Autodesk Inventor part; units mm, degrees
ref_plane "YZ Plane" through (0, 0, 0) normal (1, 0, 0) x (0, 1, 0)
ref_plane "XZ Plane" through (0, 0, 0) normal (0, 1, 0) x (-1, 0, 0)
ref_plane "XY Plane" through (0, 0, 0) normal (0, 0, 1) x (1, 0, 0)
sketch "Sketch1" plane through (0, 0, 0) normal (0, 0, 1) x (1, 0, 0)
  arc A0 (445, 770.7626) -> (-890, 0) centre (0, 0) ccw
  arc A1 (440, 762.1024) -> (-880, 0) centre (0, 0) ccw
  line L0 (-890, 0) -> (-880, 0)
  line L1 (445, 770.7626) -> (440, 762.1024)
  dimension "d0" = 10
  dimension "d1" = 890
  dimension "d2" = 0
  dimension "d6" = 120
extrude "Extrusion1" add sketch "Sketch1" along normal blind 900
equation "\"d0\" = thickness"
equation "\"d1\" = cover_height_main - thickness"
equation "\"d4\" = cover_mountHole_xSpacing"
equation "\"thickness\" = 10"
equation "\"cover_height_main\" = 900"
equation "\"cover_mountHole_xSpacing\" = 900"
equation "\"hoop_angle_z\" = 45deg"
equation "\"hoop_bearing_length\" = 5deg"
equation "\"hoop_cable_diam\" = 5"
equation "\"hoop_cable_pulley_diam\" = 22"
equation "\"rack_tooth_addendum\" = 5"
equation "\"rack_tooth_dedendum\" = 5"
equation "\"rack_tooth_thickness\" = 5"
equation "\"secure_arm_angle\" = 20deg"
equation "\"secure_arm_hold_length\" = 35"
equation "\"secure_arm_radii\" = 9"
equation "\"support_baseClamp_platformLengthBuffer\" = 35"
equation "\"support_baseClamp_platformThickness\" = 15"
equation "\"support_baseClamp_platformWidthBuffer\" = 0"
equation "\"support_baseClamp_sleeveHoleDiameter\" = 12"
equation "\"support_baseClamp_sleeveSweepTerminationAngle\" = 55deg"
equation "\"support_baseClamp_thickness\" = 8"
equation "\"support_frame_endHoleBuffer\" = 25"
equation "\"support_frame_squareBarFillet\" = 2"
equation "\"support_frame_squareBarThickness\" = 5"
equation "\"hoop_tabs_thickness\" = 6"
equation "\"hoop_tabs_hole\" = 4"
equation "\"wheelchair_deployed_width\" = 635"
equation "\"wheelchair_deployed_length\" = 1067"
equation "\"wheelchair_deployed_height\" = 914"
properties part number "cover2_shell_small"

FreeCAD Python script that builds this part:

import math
import FreeCAD as App
import Part
import Sketcher
Q = App.Units.Quantity

doc = App.newDocument("Part")
body = doc.addObject("PartDesign::Body", "Body")

sketch1 = doc.addObject("Sketcher::SketchObject", "Sketch")
body.addObject(sketch1)
sketch1.AttachmentSupport = (doc.XY_Plane, [""])
sketch1.MapMode = "FlatFace"
sketch1.addGeometry([
    Part.LineSegment(App.Vector(440, 762, 0), App.Vector(445, 771, 0)),
    Part.ArcOfCircle(Part.Circle(App.Vector(0, 0, 0), App.Vector(0, 0, 1), 890), math.radians(60), math.radians(180)),
    Part.LineSegment(App.Vector(-890, 0, 0), App.Vector(-880, 0, 0)),
    Part.ArcOfCircle(Part.Circle(App.Vector(0, 0, 0), App.Vector(0, 0, 1), 880), math.radians(60), math.radians(180)),
], False)
sketch1.addConstraint([
    Sketcher.Constraint("Coincident", 0, 2, 1, 1),
    Sketcher.Constraint("Coincident", 1, 2, 2, 1),
    Sketcher.Constraint("Coincident", 2, 2, 3, 2),
    Sketcher.Constraint("Coincident", 3, 1, 0, 1),
    Sketcher.Constraint("Horizontal", 2),
    Sketcher.Constraint("Coincident", 1, 3, -1, 1),
    Sketcher.Constraint("Coincident", 3, 3, -1, 1),
    Sketcher.Constraint("PointOnObject", 2, 2, -1),
    Sketcher.Constraint("Radius", 1, 890.0),
    Sketcher.Constraint("DistanceX", 2, 1, 2, 2, 10.0),
    Sketcher.Constraint("Angle", 0, Q("59.9998 deg")),
    Sketcher.Constraint("DistanceX", -1, 1, 0, 2, 445.0),
])
pad1 = doc.addObject("PartDesign::Pad", "Pad")
body.addObject(pad1)
pad1.Profile = sketch1
pad1.Length = 900

doc.recompute()
